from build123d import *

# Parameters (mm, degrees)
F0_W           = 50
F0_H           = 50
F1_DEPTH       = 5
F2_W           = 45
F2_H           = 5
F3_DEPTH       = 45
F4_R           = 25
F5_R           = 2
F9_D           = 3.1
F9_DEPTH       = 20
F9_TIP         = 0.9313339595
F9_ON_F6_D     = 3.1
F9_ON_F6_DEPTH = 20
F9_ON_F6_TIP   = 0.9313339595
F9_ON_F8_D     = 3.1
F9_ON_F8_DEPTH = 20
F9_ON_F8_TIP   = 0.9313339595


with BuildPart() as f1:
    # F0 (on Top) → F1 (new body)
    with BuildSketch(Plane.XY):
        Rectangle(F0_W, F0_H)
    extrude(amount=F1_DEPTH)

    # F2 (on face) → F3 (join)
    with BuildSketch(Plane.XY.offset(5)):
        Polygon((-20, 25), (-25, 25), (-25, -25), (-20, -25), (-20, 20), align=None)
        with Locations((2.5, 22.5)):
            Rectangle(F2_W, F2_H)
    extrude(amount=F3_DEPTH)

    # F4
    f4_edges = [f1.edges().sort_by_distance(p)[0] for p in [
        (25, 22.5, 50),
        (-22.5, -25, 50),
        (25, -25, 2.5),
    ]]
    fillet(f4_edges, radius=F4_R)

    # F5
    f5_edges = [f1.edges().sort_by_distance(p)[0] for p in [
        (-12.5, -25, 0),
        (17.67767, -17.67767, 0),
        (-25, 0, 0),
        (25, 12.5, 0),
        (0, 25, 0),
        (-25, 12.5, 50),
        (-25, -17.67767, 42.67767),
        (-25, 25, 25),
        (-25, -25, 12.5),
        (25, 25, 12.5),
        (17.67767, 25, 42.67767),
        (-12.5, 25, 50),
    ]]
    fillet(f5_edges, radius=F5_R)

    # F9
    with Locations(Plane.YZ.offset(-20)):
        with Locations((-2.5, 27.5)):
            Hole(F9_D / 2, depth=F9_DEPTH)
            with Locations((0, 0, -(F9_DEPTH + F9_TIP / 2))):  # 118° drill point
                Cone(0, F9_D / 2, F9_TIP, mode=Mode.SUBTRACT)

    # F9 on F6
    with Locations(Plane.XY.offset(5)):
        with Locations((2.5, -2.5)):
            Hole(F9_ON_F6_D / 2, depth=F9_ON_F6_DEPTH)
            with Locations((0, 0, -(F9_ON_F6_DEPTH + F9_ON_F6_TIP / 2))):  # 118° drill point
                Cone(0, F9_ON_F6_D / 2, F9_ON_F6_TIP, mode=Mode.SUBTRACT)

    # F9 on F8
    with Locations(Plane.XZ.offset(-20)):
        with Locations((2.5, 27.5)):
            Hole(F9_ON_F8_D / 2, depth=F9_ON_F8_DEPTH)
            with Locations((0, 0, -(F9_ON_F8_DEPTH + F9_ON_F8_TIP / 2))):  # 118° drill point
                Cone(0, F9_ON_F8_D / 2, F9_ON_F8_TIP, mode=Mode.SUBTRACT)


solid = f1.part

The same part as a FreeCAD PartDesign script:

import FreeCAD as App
import Part
import Sketcher

V = App.Vector


def edges_at(feature, points):
    """Names of the edges that pass closest to the given points."""
    edges = feature.Shape.Edges
    near = lambda p: min(range(len(edges)), key=lambda i: edges[i].distToShape(Part.Vertex(*p))[0])
    return sorted({f"Edge{near(p) + 1}" for p in points})

doc = App.newDocument("Part")
body = doc.addObject("PartDesign::Body", "Body")

# Sketch on XY plane
sketch1 = doc.addObject("Sketcher::SketchObject", "Sketch")
body.addObject(sketch1)
sketch1.AttachmentSupport = (doc.XY_Plane, [""])
sketch1.MapMode = "FlatFace"
sketch1.addGeometry(Part.LineSegment(V(-25, 25, 0), V(-25, -25, 0)), False)
sketch1.addGeometry(Part.LineSegment(V(-25, -25, 0), V(25, -25, 0)), False)
sketch1.addGeometry(Part.LineSegment(V(25, -25, 0), V(25, 25, 0)), False)
sketch1.addGeometry(Part.LineSegment(V(25, 25, 0), V(-25, 25, 0)), False)
sketch1.addConstraint(Sketcher.Constraint("Coincident", 0, 2, 1, 1))
sketch1.addConstraint(Sketcher.Constraint("Coincident", 1, 2, 2, 1))
sketch1.addConstraint(Sketcher.Constraint("Coincident", 2, 2, 3, 1))
sketch1.addConstraint(Sketcher.Constraint("Coincident", 3, 2, 0, 1))
sketch1.addConstraint(Sketcher.Constraint("Vertical", 0))
sketch1.addConstraint(Sketcher.Constraint("Horizontal", 1))
sketch1.addConstraint(Sketcher.Constraint("Vertical", 2))
sketch1.addConstraint(Sketcher.Constraint("Horizontal", 3))
sketch1.addConstraint(Sketcher.Constraint("Symmetric", 0, 2, 2, 2, -1, 1))
sketch1.addConstraint(Sketcher.Constraint("Equal", 3, 0))
sketch1.addConstraint(Sketcher.Constraint("DistanceX", 1, 1, 1, 2, 50.0))
pad1 = doc.addObject("PartDesign::Pad", "Pad")
body.addObject(pad1)
pad1.Profile = sketch1
pad1.Length = 5

# Sketch on XY plane
sketch2 = doc.addObject("Sketcher::SketchObject", "Sketch001")
body.addObject(sketch2)
sketch2.AttachmentSupport = (doc.XY_Plane, [""])
sketch2.MapMode = "FlatFace"
sketch2.AttachmentOffset = App.Placement(V(0, 0, 5), App.Rotation())
sketch2.addGeometry(Part.LineSegment(V(-25, 25, 0), V(-25, -25, 0)), False)
sketch2.addGeometry(Part.LineSegment(V(-25, -25, 0), V(-20, -25, 0)), False)
sketch2.addGeometry(Part.LineSegment(V(-20, -25, 0), V(-20, 20, 0)), False)
sketch2.addGeometry(Part.LineSegment(V(-20, 20, 0), V(25, 20, 0)), False)
sketch2.addGeometry(Part.LineSegment(V(25, 20, 0), V(25, 25, 0)), False)
sketch2.addGeometry(Part.LineSegment(V(25, 25, 0), V(-25, 25, 0)), False)
sketch2.addConstraint(Sketcher.Constraint("Coincident", 0, 2, 1, 1))
sketch2.addConstraint(Sketcher.Constraint("Coincident", 1, 2, 2, 1))
sketch2.addConstraint(Sketcher.Constraint("Coincident", 2, 2, 3, 1))
sketch2.addConstraint(Sketcher.Constraint("Coincident", 3, 2, 4, 1))
sketch2.addConstraint(Sketcher.Constraint("Coincident", 4, 2, 5, 1))
sketch2.addConstraint(Sketcher.Constraint("Coincident", 5, 2, 0, 1))
sketch2.addConstraint(Sketcher.Constraint("Vertical", 0))
sketch2.addConstraint(Sketcher.Constraint("Horizontal", 1))
sketch2.addConstraint(Sketcher.Constraint("Vertical", 2))
sketch2.addConstraint(Sketcher.Constraint("Horizontal", 3))
sketch2.addConstraint(Sketcher.Constraint("Vertical", 4))
sketch2.addConstraint(Sketcher.Constraint("Horizontal", 5))
sketch2.addConstraint(Sketcher.Constraint("Symmetric", 0, 2, 4, 2, -1, 1))
sketch2.addConstraint(Sketcher.Constraint("Equal", 5, 0))
sketch2.addConstraint(Sketcher.Constraint("Equal", 3, 2))
sketch2.addConstraint(Sketcher.Constraint("DistanceX", 1, 1, 1, 2, 5.0))
sketch2.addConstraint(Sketcher.Constraint("DistanceX", 3, 1, 3, 2, 45.0))
pad2 = doc.addObject("PartDesign::Pad", "Pad001")
body.addObject(pad2)
pad2.Profile = sketch2
pad2.Length = 45
doc.recompute()

fillet = doc.addObject("PartDesign::Fillet", "Fillet")
body.addObject(fillet)
fillet.Base = (pad2, edges_at(pad2, [(25, 22.5, 50), (-22.5, -25, 50), (25, -25, 2.5)]))
fillet.Radius = 25
doc.recompute()

fillet2 = doc.addObject("PartDesign::Fillet", "Fillet001")
body.addObject(fillet2)
fillet2.Base = (fillet, edges_at(fillet, [
    (-12.5, -25, 0),
    (17.678, -17.678, 0),
    (-25, 0, 0),
    (25, 12.5, 0),
    (0, 25, 0),
    (-25, 12.5, 50),
    (-25, -17.678, 42.678),
    (-25, 25, 25),
    (-25, -25, 12.5),
    (25, 25, 12.5),
    (17.678, 25, 42.678),
    (-12.5, 25, 50),
]))
fillet2.Radius = 2

# Sketch on YZ plane
sketch3 = doc.addObject("Sketcher::SketchObject", "Sketch002")
body.addObject(sketch3)
sketch3.AttachmentSupport = (doc.YZ_Plane, [""])
sketch3.MapMode = "FlatFace"
sketch3.AttachmentOffset = App.Placement(V(0, 0, -20), App.Rotation())
sketch3.addGeometry(Part.Circle(V(-2.5, 27.5, 0), V(0, 0, 1), 1.6), False)
sketch3.addConstraint(Sketcher.Constraint("Diameter", 0, 3.1))
sketch3.addConstraint(Sketcher.Constraint("DistanceX", 0, 3, -1, 1, 2.5))
sketch3.addConstraint(Sketcher.Constraint("DistanceY", -1, 1, 0, 3, 27.5))
doc.recompute()
hole = doc.addObject("PartDesign::Hole", "Hole")
body.addObject(hole)
hole.Profile = sketch3
hole.ThreadType = "None"
hole.Diameter = 3.1
hole.DepthType = "Dimension"
hole.Depth = 20
hole.DrillPoint = "Angled"
hole.DrillPointAngle = 118

# Sketch on XY plane
sketch4 = doc.addObject("Sketcher::SketchObject", "Sketch003")
body.addObject(sketch4)
sketch4.AttachmentSupport = (doc.XY_Plane, [""])
sketch4.MapMode = "FlatFace"
sketch4.AttachmentOffset = App.Placement(V(0, 0, 5), App.Rotation())
sketch4.addGeometry(Part.Circle(V(2.5, -2.5, 0), V(0, 0, 1), 1.6), False)
sketch4.addConstraint(Sketcher.Constraint("Diameter", 0, 3.1))
sketch4.addConstraint(Sketcher.Constraint("DistanceX", -1, 1, 0, 3, 2.5))
sketch4.addConstraint(Sketcher.Constraint("DistanceY", 0, 3, -1, 1, 2.5))
doc.recompute()
hole2 = doc.addObject("PartDesign::Hole", "Hole001")
body.addObject(hole2)
hole2.Profile = sketch4
hole2.ThreadType = "None"
hole2.Diameter = 3.1
hole2.DepthType = "Dimension"
hole2.Depth = 20
hole2.DrillPoint = "Angled"
hole2.DrillPointAngle = 118

# Sketch on XZ plane
sketch5 = doc.addObject("Sketcher::SketchObject", "Sketch004")
body.addObject(sketch5)
sketch5.AttachmentSupport = (doc.XZ_Plane, [""])
sketch5.MapMode = "FlatFace"
sketch5.AttachmentOffset = App.Placement(V(0, 0, -20), App.Rotation())
sketch5.addGeometry(Part.Circle(V(2.5, 27.5, 0), V(0, 0, 1), 1.6), False)
sketch5.addConstraint(Sketcher.Constraint("Diameter", 0, 3.1))
sketch5.addConstraint(Sketcher.Constraint("DistanceX", -1, 1, 0, 3, 2.5))
sketch5.addConstraint(Sketcher.Constraint("DistanceY", -1, 1, 0, 3, 27.5))
doc.recompute()
hole3 = doc.addObject("PartDesign::Hole", "Hole002")
body.addObject(hole3)
hole3.Profile = sketch5
hole3.ThreadType = "None"
hole3.Diameter = 3.1
hole3.DepthType = "Dimension"
hole3.Depth = 20
hole3.DrillPoint = "Angled"
hole3.DrillPointAngle = 118

doc.recompute()
